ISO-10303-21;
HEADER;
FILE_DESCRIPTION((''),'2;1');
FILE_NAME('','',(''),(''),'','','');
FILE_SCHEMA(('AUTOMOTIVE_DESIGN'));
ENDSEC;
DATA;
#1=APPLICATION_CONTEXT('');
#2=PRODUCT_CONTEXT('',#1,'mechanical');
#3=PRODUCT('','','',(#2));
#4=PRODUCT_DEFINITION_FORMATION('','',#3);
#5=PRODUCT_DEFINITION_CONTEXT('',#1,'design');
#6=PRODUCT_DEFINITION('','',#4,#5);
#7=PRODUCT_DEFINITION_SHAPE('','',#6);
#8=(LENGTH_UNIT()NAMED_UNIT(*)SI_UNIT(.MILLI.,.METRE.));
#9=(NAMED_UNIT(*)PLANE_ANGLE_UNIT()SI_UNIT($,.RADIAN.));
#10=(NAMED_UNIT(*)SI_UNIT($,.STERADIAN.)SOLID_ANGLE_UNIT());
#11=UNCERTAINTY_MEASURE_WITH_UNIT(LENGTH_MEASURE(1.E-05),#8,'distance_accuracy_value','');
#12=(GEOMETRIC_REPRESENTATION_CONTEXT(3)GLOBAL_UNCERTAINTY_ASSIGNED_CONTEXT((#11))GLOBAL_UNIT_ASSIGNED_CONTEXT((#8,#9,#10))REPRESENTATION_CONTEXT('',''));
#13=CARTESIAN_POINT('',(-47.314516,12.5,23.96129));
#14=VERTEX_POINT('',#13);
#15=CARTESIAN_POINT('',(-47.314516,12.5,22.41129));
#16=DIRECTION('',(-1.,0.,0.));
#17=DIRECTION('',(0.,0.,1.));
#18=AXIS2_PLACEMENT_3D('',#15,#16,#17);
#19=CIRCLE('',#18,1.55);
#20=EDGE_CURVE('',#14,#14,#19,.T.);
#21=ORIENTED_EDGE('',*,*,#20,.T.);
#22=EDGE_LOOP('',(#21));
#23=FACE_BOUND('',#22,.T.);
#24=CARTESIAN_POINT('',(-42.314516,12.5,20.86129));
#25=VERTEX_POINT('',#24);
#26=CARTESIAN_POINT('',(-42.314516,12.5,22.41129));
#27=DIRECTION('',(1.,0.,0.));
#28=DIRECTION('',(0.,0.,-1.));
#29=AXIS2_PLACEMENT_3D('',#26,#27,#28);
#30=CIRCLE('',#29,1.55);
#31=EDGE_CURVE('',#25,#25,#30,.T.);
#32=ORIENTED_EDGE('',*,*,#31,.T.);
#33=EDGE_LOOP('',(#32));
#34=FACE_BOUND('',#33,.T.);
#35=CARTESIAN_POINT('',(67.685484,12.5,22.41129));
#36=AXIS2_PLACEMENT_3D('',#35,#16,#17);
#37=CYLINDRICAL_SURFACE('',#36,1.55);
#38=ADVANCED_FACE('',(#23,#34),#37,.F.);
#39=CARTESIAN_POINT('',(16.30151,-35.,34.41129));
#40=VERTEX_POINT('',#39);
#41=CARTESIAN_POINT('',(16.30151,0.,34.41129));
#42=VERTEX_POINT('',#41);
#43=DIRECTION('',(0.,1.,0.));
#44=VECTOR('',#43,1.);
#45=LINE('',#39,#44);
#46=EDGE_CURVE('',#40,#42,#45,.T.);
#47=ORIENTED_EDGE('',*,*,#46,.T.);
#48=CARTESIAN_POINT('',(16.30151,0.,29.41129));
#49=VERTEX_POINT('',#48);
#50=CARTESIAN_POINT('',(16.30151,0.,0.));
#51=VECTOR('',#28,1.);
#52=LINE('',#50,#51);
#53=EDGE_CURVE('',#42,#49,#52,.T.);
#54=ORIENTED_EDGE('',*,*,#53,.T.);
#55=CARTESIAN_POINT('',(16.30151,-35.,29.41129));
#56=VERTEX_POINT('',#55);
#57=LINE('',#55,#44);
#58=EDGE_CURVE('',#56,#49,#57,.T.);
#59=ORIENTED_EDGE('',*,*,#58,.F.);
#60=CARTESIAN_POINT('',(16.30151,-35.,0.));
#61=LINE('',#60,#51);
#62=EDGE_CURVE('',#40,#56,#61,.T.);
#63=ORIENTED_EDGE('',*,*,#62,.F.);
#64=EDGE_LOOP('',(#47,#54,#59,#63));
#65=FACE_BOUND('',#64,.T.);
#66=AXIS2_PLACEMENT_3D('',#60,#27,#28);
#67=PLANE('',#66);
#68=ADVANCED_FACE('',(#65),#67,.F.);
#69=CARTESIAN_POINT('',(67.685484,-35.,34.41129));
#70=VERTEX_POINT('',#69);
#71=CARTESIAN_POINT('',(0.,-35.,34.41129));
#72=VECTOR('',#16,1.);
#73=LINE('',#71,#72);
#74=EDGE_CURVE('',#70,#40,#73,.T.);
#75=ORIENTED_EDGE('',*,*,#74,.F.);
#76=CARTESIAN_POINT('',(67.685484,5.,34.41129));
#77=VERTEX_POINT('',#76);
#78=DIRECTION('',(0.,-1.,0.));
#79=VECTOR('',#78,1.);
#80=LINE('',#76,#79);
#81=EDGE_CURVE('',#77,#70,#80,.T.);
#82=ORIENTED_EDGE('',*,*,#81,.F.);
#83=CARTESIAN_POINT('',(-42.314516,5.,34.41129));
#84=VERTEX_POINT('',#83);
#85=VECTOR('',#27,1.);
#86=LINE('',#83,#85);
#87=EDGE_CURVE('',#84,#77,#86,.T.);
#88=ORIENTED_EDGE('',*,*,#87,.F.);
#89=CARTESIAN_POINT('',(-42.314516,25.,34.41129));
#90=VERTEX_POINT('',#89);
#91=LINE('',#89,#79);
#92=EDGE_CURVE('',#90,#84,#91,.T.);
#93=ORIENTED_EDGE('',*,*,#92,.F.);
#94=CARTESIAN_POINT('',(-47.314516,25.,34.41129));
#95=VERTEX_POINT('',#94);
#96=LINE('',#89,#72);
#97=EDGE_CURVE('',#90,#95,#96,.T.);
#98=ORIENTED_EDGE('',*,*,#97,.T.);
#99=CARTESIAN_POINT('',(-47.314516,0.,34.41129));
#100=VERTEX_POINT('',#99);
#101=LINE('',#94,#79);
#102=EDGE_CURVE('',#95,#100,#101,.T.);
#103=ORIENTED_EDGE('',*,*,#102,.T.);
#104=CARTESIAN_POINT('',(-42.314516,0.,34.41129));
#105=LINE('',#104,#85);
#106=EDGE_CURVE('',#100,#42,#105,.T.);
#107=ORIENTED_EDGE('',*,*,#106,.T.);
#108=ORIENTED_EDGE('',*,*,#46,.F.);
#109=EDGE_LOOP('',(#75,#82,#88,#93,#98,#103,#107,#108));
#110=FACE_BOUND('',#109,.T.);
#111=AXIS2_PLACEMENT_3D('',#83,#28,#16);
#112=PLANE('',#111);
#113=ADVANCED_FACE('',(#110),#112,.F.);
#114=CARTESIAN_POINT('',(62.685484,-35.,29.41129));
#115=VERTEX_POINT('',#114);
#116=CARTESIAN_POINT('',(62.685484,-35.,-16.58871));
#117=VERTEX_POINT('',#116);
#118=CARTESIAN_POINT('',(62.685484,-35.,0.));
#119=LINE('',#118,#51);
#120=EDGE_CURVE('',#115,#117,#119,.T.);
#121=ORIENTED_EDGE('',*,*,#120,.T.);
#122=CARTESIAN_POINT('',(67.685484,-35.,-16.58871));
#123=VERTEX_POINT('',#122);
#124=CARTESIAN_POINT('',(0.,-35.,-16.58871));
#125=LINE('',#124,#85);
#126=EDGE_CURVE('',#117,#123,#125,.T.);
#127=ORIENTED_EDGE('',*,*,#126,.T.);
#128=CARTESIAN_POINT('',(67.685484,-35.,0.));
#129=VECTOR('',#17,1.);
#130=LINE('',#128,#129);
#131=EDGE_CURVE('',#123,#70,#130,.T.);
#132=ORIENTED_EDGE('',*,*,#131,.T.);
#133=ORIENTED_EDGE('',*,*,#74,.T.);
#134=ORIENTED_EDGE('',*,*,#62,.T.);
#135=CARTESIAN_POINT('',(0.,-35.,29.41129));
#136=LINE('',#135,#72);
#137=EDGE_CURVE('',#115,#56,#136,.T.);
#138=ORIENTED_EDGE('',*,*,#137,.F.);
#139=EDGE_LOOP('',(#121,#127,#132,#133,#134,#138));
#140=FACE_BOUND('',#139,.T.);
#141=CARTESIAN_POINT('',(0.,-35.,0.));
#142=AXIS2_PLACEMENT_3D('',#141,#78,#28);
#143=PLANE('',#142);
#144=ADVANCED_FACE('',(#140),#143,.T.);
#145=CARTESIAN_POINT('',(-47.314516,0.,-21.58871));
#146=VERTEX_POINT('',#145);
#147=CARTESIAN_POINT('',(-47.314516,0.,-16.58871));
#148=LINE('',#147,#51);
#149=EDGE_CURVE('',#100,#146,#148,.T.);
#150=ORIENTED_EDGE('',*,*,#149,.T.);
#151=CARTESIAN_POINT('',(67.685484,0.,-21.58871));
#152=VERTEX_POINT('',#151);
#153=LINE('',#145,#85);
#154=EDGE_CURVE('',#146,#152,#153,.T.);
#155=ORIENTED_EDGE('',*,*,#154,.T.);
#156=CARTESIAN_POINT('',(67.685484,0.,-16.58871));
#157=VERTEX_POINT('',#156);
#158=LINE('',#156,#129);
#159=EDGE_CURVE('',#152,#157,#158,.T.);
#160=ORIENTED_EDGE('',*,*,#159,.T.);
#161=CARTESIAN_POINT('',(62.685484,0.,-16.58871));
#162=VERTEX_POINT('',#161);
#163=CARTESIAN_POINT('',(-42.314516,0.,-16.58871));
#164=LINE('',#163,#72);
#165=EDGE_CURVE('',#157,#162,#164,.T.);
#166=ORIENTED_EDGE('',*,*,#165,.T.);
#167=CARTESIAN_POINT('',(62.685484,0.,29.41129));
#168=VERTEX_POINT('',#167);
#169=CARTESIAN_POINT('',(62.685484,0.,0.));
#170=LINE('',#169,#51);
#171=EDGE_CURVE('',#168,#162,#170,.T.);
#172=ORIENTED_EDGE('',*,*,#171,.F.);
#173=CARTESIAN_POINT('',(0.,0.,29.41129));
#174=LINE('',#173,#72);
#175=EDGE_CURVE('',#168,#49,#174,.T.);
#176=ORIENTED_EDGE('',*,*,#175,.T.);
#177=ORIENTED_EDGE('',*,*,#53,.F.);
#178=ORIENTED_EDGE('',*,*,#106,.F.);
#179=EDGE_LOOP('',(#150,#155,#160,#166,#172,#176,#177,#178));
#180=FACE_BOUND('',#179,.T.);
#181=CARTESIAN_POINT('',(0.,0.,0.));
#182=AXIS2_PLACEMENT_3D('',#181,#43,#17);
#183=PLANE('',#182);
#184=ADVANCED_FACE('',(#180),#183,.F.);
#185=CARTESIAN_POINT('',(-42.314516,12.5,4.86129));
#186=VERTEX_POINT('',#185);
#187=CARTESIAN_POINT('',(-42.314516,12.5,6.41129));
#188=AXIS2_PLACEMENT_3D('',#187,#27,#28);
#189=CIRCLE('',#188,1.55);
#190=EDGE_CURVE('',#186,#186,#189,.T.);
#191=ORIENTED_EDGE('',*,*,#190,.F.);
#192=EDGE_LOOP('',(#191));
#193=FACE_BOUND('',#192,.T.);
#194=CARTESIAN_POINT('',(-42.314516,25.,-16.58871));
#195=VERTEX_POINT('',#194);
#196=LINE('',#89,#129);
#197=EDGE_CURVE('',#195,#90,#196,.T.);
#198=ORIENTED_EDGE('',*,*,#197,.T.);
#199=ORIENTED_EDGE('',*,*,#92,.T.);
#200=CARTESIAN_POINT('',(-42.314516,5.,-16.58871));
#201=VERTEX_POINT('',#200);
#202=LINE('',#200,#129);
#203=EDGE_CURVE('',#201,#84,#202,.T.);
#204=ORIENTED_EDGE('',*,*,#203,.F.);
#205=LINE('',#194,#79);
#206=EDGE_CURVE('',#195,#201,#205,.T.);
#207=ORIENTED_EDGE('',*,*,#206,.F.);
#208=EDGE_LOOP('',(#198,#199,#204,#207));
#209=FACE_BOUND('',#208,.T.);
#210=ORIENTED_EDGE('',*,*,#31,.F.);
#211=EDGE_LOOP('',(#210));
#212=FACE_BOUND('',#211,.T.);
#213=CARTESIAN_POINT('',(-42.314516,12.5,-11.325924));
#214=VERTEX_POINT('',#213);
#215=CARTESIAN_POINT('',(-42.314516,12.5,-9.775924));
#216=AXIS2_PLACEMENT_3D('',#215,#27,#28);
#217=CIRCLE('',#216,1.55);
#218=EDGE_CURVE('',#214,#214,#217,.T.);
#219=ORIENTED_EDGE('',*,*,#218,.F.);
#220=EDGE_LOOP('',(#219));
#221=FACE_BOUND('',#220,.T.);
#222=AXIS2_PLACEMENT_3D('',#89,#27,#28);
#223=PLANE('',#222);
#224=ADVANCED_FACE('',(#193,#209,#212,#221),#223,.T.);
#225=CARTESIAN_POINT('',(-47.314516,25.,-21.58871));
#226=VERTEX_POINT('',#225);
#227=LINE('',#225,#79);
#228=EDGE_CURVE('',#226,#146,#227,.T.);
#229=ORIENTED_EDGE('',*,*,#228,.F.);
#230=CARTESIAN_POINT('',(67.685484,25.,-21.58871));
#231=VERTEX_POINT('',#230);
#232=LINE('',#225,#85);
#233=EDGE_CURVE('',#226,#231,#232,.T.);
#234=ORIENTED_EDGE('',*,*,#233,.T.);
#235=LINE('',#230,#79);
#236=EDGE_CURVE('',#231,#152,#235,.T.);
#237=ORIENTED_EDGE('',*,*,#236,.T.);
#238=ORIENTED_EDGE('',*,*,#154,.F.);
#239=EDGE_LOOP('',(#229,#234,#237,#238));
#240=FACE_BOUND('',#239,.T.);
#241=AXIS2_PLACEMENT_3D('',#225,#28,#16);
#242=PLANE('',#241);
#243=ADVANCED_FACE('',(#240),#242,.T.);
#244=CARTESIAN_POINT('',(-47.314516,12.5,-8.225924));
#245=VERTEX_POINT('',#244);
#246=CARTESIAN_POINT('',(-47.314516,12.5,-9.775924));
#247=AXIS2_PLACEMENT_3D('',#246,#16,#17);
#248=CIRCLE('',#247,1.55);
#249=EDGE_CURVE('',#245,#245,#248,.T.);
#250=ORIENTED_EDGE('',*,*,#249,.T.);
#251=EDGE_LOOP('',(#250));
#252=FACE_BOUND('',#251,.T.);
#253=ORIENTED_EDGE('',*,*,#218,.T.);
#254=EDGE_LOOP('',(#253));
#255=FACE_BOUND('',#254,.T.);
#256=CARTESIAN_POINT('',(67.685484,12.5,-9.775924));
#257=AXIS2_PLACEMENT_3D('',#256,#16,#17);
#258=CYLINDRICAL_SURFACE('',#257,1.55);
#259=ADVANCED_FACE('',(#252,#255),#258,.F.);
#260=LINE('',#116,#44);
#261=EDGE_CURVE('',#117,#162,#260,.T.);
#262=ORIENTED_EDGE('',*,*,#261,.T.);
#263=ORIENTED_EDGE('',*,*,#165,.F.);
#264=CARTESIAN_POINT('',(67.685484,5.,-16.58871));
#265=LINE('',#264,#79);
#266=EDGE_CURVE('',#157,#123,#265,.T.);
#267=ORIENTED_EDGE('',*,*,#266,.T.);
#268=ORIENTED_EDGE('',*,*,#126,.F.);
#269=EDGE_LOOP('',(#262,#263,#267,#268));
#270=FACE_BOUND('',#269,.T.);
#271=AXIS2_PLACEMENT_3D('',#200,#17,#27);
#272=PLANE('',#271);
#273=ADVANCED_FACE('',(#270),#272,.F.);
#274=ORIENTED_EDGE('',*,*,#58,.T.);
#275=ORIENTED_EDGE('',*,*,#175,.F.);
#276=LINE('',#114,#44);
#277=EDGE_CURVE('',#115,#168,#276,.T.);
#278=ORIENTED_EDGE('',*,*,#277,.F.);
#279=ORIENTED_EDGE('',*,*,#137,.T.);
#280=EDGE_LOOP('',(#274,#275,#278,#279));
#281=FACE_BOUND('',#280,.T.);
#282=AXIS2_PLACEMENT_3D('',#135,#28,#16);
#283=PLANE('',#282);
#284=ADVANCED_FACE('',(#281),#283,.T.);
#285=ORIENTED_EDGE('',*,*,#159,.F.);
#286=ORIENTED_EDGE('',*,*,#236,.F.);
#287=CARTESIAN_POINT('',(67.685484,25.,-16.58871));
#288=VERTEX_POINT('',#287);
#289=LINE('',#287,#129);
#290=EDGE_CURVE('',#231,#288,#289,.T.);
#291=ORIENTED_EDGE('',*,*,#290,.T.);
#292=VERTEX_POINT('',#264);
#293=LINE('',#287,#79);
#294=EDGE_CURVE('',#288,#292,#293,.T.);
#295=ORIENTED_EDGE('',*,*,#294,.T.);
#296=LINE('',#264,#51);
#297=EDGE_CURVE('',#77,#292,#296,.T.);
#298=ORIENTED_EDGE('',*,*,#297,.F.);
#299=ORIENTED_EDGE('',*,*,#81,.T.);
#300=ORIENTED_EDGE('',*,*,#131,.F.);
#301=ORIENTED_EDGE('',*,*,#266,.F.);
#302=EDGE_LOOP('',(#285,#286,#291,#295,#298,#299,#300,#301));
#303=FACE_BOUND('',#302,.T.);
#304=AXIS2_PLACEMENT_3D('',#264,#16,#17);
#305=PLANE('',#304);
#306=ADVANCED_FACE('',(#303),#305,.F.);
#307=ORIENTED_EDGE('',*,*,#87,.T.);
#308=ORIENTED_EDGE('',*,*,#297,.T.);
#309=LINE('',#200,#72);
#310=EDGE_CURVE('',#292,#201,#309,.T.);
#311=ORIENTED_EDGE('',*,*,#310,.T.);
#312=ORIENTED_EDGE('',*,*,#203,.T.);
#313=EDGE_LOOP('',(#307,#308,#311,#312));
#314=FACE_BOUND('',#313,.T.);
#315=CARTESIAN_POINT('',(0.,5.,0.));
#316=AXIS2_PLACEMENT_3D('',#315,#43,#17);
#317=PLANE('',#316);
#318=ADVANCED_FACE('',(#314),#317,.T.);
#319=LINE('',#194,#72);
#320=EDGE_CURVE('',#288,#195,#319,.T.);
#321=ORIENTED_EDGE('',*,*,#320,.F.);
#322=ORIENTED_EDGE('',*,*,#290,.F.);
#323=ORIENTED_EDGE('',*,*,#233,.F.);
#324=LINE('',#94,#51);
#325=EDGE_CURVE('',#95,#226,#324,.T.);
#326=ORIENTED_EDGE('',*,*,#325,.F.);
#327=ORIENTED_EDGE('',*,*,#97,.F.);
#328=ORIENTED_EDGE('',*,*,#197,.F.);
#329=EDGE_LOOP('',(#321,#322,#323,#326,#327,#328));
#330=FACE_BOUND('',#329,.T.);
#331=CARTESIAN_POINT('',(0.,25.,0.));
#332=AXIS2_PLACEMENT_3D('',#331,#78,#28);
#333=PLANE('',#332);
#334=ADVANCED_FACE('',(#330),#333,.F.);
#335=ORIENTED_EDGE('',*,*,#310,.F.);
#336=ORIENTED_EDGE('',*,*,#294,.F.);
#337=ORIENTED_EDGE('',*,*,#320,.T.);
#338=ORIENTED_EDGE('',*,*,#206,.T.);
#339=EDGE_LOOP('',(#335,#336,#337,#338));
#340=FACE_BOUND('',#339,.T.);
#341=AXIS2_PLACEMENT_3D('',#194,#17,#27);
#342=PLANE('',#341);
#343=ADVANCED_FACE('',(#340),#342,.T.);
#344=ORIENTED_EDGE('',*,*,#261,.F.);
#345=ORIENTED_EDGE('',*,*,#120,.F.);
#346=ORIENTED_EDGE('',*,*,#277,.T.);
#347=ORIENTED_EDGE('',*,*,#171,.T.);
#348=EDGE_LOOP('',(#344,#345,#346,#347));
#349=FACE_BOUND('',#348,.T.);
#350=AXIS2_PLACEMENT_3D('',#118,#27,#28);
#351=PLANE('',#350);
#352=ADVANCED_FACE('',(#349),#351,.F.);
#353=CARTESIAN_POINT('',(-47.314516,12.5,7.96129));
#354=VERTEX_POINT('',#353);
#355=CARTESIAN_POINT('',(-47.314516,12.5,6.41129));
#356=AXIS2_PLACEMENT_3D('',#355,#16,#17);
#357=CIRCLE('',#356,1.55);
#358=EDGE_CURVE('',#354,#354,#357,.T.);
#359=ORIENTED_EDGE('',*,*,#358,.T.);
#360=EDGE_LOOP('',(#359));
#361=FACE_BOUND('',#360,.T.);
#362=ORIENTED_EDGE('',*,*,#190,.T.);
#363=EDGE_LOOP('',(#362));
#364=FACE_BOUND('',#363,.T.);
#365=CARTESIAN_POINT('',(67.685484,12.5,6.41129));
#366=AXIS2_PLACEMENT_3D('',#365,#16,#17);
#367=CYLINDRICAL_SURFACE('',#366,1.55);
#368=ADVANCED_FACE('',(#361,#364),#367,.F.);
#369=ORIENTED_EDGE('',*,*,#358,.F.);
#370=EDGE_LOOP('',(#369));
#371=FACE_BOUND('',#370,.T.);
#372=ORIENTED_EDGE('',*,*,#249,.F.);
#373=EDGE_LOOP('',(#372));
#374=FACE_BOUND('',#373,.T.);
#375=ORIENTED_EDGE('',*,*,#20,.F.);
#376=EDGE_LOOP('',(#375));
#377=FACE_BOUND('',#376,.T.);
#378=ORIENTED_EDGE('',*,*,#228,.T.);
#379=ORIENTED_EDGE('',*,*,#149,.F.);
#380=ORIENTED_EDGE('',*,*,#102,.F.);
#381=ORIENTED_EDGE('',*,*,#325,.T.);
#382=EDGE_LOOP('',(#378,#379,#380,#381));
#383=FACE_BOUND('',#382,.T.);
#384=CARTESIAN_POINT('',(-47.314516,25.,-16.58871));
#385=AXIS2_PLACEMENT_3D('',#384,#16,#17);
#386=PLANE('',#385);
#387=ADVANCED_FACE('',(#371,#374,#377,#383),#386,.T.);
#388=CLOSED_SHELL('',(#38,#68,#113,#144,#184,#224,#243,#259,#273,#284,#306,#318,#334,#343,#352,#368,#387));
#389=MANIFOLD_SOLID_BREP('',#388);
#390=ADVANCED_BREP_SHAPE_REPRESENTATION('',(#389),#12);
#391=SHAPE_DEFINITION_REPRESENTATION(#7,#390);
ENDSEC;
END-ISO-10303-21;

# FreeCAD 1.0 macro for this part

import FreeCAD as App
import Part
import Sketcher


def add_polygon(sketch, points):
    """Adds a closed chain of lines whose ends are joined by coincident constraints."""
    first, n = sketch.GeometryCount, len(points)
    for a, b in zip(points, points[1:] + points[:1]):
        sketch.addGeometry(Part.LineSegment(App.Vector(*a, 0), App.Vector(*b, 0)), False)
    for i in range(n):
        sketch.addConstraint(Sketcher.Constraint("Coincident", first + i, 2, first + (i + 1) % n, 1))

doc = App.newDocument("Part")
body = doc.addObject("PartDesign::Body", "Body")

# Sketch on XZ plane
sketch1 = doc.addObject("Sketcher::SketchObject", "Sketch")
body.addObject(sketch1)
sketch1.AttachmentSupport = (doc.XZ_Plane, [""])
sketch1.MapMode = "FlatFace"
add_polygon(sketch1, [(-42.314516, -16.58871), (-42.314516, 34.41129), (67.685484, 34.41129), (67.685484, -16.58871)])  # lines 0-3
sketch1.addConstraint([
    Sketcher.Constraint("Vertical", 0),
    Sketcher.Constraint("Horizontal", 1),
    Sketcher.Constraint("Vertical", 2),
    Sketcher.Constraint("Horizontal", 3),
    Sketcher.Constraint("DistanceX", 1, 1, 1, 2, 110.0),
    Sketcher.Constraint("DistanceY", 0, 1, 0, 2, 51.0),
    Sketcher.Constraint("DistanceY", -1, 1, 0, 2, 34.41129),
    Sketcher.Constraint("DistanceX", 0, 2, -1, 1, 42.314516),
])
pad1 = doc.addObject("PartDesign::Pad", "Pad")
body.addObject(pad1)
pad1.Profile = sketch1
pad1.Length = 5
pad1.Reversed = True
body2 = doc.addObject("PartDesign::Body", "Body001")

# Sketch on XZ plane
sketch2 = doc.addObject("Sketcher::SketchObject", "Sketch001")
body2.addObject(sketch2)
sketch2.AttachmentSupport = (doc.getObject("XZ_Plane001"), [""])
sketch2.MapMode = "FlatFace"
add_polygon(sketch2, [(-42.314516, 34.41129), (-47.314516, 34.41129), (-47.314516, -21.58871), (67.685484, -21.58871), (67.685484, -16.58871), (-42.314516, -16.58871)])  # lines 0-5
sketch2.addConstraint([
    Sketcher.Constraint("Horizontal", 0),
    Sketcher.Constraint("Vertical", 1),
    Sketcher.Constraint("Horizontal", 2),
    Sketcher.Constraint("Vertical", 3),
    Sketcher.Constraint("Horizontal", 4),
    Sketcher.Constraint("Vertical", 5),
    Sketcher.Constraint("Equal", 0, 3),
    Sketcher.Constraint("DistanceX", 0, 2, 0, 1, 5.0),
    Sketcher.Constraint("DistanceX", 2, 1, 2, 2, 115.0),
    Sketcher.Constraint("DistanceY", 1, 2, 1, 1, 56.0),
    Sketcher.Constraint("DistanceY", -1, 1, 0, 2, 34.41129),
    Sketcher.Constraint("DistanceX", 0, 2, -1, 1, 47.314516),
])
pad2 = doc.addObject("PartDesign::Pad", "Pad001")
body2.addObject(pad2)
pad2.Profile = sketch2
pad2.Length = 25
pad2.Reversed = True

# Sketch on YZ plane
sketch3 = doc.addObject("Sketcher::SketchObject", "Sketch002")
body2.addObject(sketch3)
sketch3.AttachmentSupport = (doc.getObject("YZ_Plane001"), [""])
sketch3.MapMode = "FlatFace"
sketch3.AttachmentOffset = App.Placement(App.Vector(0, 0, -47.314516), App.Rotation())
sketch3.addGeometry([
    Part.Circle(App.Vector(12.5, -9.775924, 0), App.Vector(0, 0, 1), 1.55),
    Part.Circle(App.Vector(12.5, 6.41129, 0), App.Vector(0, 0, 1), 1.55),
    Part.Circle(App.Vector(12.5, 22.41129, 0), App.Vector(0, 0, 1), 1.55),
], False)
sketch3.addConstraint([
    Sketcher.Constraint("Equal", 0, 1),
    Sketcher.Constraint("Equal", 1, 2),
    Sketcher.Constraint("Vertical", 0, 3, 1, 3),
    Sketcher.Constraint("Vertical", 1, 3, 2, 3),
    Sketcher.Constraint("Diameter", 0, 3.1),
    Sketcher.Constraint("DistanceY", 1, 3, 2, 3, 16.0),
    Sketcher.Constraint("DistanceX", -1, 1, 0, 3, 12.5),
    Sketcher.Constraint("DistanceY", -1, 1, 1, 3, 6.41129),
    Sketcher.Constraint("DistanceY", 0, 3, -1, 1, 9.775924),
])
pocket1 = doc.addObject("PartDesign::Pocket", "Pocket")
body2.addObject(pocket1)
pocket1.Profile = sketch3
pocket1.Type = "ThroughAll"
pocket1.Reversed = True
doc.recompute()

boolean = doc.addObject("PartDesign::Boolean", "Boolean")
body.addObject(boolean)
boolean.Type = "Fuse"
boolean.addObjects([body2])

# Sketch on XZ plane
sketch4 = doc.addObject("Sketcher::SketchObject", "Sketch003")
body.addObject(sketch4)
sketch4.AttachmentSupport = (doc.XZ_Plane, [""])
sketch4.MapMode = "FlatFace"
add_polygon(sketch4, [(67.685484, 34.41129), (16.30151, 34.41129), (16.30151, 29.41129), (62.685484, 29.41129), (62.685484, -16.58871), (67.685484, -16.58871)])  # lines 0-5
sketch4.addConstraint([
    Sketcher.Constraint("Horizontal", 0),
    Sketcher.Constraint("Vertical", 1),
    Sketcher.Constraint("Horizontal", 2),
    Sketcher.Constraint("Vertical", 3),
    Sketcher.Constraint("Horizontal", 4),
    Sketcher.Constraint("Vertical", 5),
    Sketcher.Constraint("Equal", 4, 1),
    Sketcher.Constraint("DistanceX", 4, 1, 4, 2, 5.0),
    Sketcher.Constraint("DistanceY", 3, 2, 3, 1, 46.0),
    Sketcher.Constraint("DistanceX", 0, 2, 0, 1, 51.383974),
    Sketcher.Constraint("DistanceX", -1, 1, 0, 2, 16.30151),
    Sketcher.Constraint("DistanceY", -1, 1, 0, 2, 34.41129),
])
pad3 = doc.addObject("PartDesign::Pad", "Pad002")
body.addObject(pad3)
pad3.Profile = sketch4
pad3.Length = 35

doc.recompute()
